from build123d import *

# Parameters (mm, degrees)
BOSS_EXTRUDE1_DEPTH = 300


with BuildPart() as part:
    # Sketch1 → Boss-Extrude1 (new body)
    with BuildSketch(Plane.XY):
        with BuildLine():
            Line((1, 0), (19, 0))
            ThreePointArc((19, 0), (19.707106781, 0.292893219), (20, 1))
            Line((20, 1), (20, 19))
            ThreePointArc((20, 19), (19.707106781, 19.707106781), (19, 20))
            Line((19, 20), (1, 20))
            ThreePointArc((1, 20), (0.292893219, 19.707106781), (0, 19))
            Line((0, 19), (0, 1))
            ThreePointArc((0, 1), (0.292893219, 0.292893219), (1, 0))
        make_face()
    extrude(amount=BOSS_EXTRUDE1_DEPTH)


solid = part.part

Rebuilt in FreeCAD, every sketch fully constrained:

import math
import FreeCAD as App
import Part
import Sketcher

V = App.Vector
Q = App.Units.Quantity

doc = App.newDocument("Part")
params = doc.addObject("Spreadsheet::Sheet", "Params")
for row, (alias, value) in enumerate([
    ("sketch1_radius", "1 mm"),
    ("sketch1_width", "18 mm"),
    ("pad1_length", "300 mm"),
], start=1):
    params.set(f"A{row}", alias)
    params.set(f"B{row}", "=" + value)
    params.setAlias(f"B{row}", alias)

body = doc.addObject("PartDesign::Body", "Body")

# Sketch on XY plane
sketch1 = body.newObject("Sketcher::SketchObject", "Sketch")
sketch1.AttachmentSupport = (doc.getObject("XY_Plane"), [""])
sketch1.MapMode = "FlatFace"
sketch1.addGeometry(Part.LineSegment(V(1, 0, 0), V(19, 0, 0)), False)
sketch1.addGeometry(Part.ArcOfCircle(Part.Circle(V(19, 1, 0), V(0, 0, 1), 1), math.radians(-90), math.radians(0)), False)
sketch1.addGeometry(Part.LineSegment(V(20, 1, 0), V(20, 19, 0)), False)
sketch1.addGeometry(Part.ArcOfCircle(Part.Circle(V(19, 19, 0), V(0, 0, 1), 1), math.radians(0), math.radians(90)), False)
sketch1.addGeometry(Part.LineSegment(V(19, 20, 0), V(1, 20, 0)), False)
sketch1.addGeometry(Part.ArcOfCircle(Part.Circle(V(1, 19, 0), V(0, 0, 1), 1), math.radians(90), math.radians(180)), False)
sketch1.addGeometry(Part.LineSegment(V(0, 19, 0), V(0, 1, 0)), False)
sketch1.addGeometry(Part.ArcOfCircle(Part.Circle(V(1, 1, 0), V(0, 0, 1), 1), math.radians(-180), math.radians(-90)), False)
sketch1.addConstraint(Sketcher.Constraint("Tangent", 0, 2, 1, 1))
sketch1.addConstraint(Sketcher.Constraint("Tangent", 1, 2, 2, 1))
sketch1.addConstraint(Sketcher.Constraint("Tangent", 2, 2, 3, 1))
sketch1.addConstraint(Sketcher.Constraint("Tangent", 3, 2, 4, 1))
sketch1.addConstraint(Sketcher.Constraint("Tangent", 4, 2, 5, 1))
sketch1.addConstraint(Sketcher.Constraint("Tangent", 5, 2, 6, 1))
sketch1.addConstraint(Sketcher.Constraint("Tangent", 6, 2, 7, 1))
sketch1.addConstraint(Sketcher.Constraint("Tangent", 7, 2, 0, 1))
sketch1.addConstraint(Sketcher.Constraint("Horizontal", 0))
sketch1.addConstraint(Sketcher.Constraint("Vertical", 2))
sketch1.addConstraint(Sketcher.Constraint("Horizontal", 4))
sketch1.addConstraint(Sketcher.Constraint("Vertical", 6))
sketch1.addConstraint(Sketcher.Constraint("Equal", 1, 3))
sketch1.addConstraint(Sketcher.Constraint("Equal", 3, 5))
sketch1.addConstraint(Sketcher.Constraint("Equal", 5, 7))
sketch1.addConstraint(Sketcher.Constraint("PointOnObject", 0, 2, -1))
sketch1.addConstraint(Sketcher.Constraint("PointOnObject", 5, 2, -2))
sketch1.addConstraint(Sketcher.Constraint("Equal", 4, 2))
sketch1.addConstraint(Sketcher.Constraint("Radius", 1, Q("1 mm")))
sketch1.addConstraint(Sketcher.Constraint("DistanceX", 0, 1, 0, 2, Q("18 mm")))
sketch1.setExpression("Constraints[18]", "Params.sketch1_radius")
sketch1.setExpression("Constraints[19]", "Params.sketch1_width")
pad1 = body.newObject("PartDesign::Pad", "Pad")
pad1.Profile = sketch1
pad1.setExpression("Length", "Params.pad1_length")

doc.recompute()
